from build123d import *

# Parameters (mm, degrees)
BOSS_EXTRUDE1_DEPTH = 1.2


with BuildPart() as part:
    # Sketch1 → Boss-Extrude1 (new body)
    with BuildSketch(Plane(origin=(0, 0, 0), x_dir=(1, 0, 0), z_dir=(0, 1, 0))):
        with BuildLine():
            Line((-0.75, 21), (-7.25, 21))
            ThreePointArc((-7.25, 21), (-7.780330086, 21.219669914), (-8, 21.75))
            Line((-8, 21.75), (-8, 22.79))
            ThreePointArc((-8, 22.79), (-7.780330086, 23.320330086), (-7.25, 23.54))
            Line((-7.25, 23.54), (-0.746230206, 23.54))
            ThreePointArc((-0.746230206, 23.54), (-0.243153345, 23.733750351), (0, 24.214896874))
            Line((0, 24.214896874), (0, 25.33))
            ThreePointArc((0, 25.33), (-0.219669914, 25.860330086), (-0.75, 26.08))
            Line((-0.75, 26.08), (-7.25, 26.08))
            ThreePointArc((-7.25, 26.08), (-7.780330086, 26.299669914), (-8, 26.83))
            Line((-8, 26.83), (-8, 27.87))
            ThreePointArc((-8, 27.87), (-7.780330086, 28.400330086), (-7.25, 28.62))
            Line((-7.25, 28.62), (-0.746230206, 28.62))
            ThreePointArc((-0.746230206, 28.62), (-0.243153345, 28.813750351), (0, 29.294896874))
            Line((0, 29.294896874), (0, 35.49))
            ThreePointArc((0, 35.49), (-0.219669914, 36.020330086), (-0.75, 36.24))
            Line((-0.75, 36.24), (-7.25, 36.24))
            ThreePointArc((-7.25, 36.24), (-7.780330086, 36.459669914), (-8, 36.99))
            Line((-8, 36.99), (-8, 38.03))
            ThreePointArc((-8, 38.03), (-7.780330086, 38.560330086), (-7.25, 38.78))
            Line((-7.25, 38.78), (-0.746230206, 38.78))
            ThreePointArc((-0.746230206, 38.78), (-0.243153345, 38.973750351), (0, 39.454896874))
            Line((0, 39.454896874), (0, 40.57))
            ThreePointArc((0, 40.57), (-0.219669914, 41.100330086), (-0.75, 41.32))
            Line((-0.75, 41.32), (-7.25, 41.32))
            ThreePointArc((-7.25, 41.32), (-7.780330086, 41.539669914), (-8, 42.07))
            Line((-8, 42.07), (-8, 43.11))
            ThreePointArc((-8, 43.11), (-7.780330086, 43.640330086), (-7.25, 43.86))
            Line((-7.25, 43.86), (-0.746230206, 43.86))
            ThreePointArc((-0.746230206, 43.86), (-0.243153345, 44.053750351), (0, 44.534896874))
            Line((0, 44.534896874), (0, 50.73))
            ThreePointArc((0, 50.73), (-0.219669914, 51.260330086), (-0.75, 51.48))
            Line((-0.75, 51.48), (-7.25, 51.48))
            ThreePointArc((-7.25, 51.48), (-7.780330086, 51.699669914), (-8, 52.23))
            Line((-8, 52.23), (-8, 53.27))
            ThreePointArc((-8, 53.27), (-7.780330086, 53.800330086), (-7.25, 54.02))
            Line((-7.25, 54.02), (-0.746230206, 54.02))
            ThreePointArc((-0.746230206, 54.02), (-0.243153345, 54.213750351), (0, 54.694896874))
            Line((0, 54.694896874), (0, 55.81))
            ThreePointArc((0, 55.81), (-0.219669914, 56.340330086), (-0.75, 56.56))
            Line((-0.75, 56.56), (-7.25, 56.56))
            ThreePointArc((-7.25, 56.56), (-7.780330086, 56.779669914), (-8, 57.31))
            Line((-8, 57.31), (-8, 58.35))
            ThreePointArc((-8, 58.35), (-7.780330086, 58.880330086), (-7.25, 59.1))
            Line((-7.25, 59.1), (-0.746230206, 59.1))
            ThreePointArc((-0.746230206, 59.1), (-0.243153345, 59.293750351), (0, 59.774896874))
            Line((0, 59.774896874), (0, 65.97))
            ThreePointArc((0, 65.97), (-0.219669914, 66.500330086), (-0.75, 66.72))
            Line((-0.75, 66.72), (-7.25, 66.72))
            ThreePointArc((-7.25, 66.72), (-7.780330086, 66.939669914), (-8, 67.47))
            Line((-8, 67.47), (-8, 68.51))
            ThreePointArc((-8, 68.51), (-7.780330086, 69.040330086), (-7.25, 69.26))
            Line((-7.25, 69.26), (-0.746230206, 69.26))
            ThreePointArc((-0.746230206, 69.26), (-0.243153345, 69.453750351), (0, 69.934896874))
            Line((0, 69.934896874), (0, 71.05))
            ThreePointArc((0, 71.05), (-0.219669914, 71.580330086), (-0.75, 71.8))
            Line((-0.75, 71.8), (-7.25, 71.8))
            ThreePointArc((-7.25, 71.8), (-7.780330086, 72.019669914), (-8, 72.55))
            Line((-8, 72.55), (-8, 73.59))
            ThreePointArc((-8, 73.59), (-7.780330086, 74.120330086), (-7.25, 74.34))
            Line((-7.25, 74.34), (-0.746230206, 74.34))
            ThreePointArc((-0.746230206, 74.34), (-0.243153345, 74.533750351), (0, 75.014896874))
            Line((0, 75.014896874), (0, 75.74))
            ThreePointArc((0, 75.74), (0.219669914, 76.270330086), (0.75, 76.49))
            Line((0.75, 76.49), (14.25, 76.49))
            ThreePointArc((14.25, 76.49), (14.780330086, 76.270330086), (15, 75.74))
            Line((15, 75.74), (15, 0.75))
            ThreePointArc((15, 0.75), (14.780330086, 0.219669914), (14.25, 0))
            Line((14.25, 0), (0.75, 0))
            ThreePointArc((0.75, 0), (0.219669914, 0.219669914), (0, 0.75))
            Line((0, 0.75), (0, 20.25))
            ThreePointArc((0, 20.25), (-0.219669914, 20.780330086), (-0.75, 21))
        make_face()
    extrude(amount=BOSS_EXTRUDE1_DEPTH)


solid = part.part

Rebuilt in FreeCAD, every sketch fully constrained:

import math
import FreeCAD as App
import Part
import Sketcher

V = App.Vector
Q = App.Units.Quantity

doc = App.newDocument("Part")
body = doc.addObject("PartDesign::Body", "Body")

# Sketch on XZ plane
sketch1 = body.newObject("Sketcher::SketchObject", "Sketch")
sketch1.AttachmentSupport = (doc.getObject("XZ_Plane"), [""])
sketch1.MapMode = "FlatFace"
sketch1.addGeometry([
    Part.LineSegment(V(-7.25, -21, 0), V(-0.75, -21, 0)),  # 0
    Part.ArcOfCircle(Part.Circle(V(-0.75, -20.25, 0), V(0, 0, 1), 0.75), math.radians(-90), math.radians(0)),  # 1
    Part.LineSegment(V(0, -20.25, 0), V(0, -0.75, 0)),  # 2
    Part.ArcOfCircle(Part.Circle(V(0.75, -0.75, 0), V(0, 0, 1), 0.75), math.radians(90), math.radians(180)),  # 3
    Part.LineSegment(V(0.75, 0, 0), V(14.25, 0, 0)),  # 4
    Part.ArcOfCircle(Part.Circle(V(14.25, -0.75, 0), V(0, 0, 1), 0.75), math.radians(0), math.radians(90)),  # 5
    Part.LineSegment(V(15, -0.75, 0), V(15, -75.74, 0)),  # 6
    Part.ArcOfCircle(Part.Circle(V(14.25, -75.74, 0), V(0, 0, 1), 0.75), math.radians(-90), math.radians(0)),  # 7
    Part.LineSegment(V(14.25, -76.49, 0), V(0.75, -76.49, 0)),  # 8
    Part.ArcOfCircle(Part.Circle(V(0.75, -75.74, 0), V(0, 0, 1), 0.75), math.radians(180), math.radians(270)),  # 9
    Part.LineSegment(V(0, -75.74, 0), V(0, -75.014897, 0)),  # 10
    Part.ArcOfCircle(Part.Circle(V(-0.74623, -75.09, 0), V(0, 0, 1), 0.75), math.radians(5.747088), math.radians(90)),  # 11
    Part.LineSegment(V(-0.74623, -74.34, 0), V(-7.25, -74.34, 0)),  # 12
    Part.ArcOfCircle(Part.Circle(V(-7.25, -73.59, 0), V(0, 0, 1), 0.75), math.radians(180), math.radians(270)),  # 13
    Part.LineSegment(V(-8, -73.59, 0), V(-8, -72.55, 0)),  # 14
    Part.ArcOfCircle(Part.Circle(V(-7.25, -72.55, 0), V(0, 0, 1), 0.75), math.radians(90), math.radians(180)),  # 15
    Part.LineSegment(V(-7.25, -71.8, 0), V(-0.75, -71.8, 0)),  # 16
    Part.ArcOfCircle(Part.Circle(V(-0.75, -71.05, 0), V(0, 0, 1), 0.75), math.radians(-90), math.radians(0)),  # 17
    Part.LineSegment(V(0, -71.05, 0), V(0, -69.934897, 0)),  # 18
    Part.ArcOfCircle(Part.Circle(V(-0.74623, -70.01, 0), V(0, 0, 1), 0.75), math.radians(5.747088), math.radians(90)),  # 19
    Part.LineSegment(V(-0.74623, -69.26, 0), V(-7.25, -69.26, 0)),  # 20
    Part.ArcOfCircle(Part.Circle(V(-7.25, -68.51, 0), V(0, 0, 1), 0.75), math.radians(180), math.radians(270)),  # 21
    Part.LineSegment(V(-8, -68.51, 0), V(-8, -67.47, 0)),  # 22
    Part.ArcOfCircle(Part.Circle(V(-7.25, -67.47, 0), V(0, 0, 1), 0.75), math.radians(90), math.radians(180)),  # 23
    Part.LineSegment(V(-7.25, -66.72, 0), V(-0.75, -66.72, 0)),  # 24
    Part.ArcOfCircle(Part.Circle(V(-0.75, -65.97, 0), V(0, 0, 1), 0.75), math.radians(-90), math.radians(0)),  # 25
    Part.LineSegment(V(0, -65.97, 0), V(0, -59.774897, 0)),  # 26
    Part.ArcOfCircle(Part.Circle(V(-0.74623, -59.85, 0), V(0, 0, 1), 0.75), math.radians(5.747088), math.radians(90)),  # 27
    Part.LineSegment(V(-0.74623, -59.1, 0), V(-7.25, -59.1, 0)),  # 28
    Part.ArcOfCircle(Part.Circle(V(-7.25, -58.35, 0), V(0, 0, 1), 0.75), math.radians(180), math.radians(270)),  # 29
    Part.LineSegment(V(-8, -58.35, 0), V(-8, -57.31, 0)),  # 30
    Part.ArcOfCircle(Part.Circle(V(-7.25, -57.31, 0), V(0, 0, 1), 0.75), math.radians(90), math.radians(180)),  # 31
    Part.LineSegment(V(-7.25, -56.56, 0), V(-0.75, -56.56, 0)),  # 32
    Part.ArcOfCircle(Part.Circle(V(-0.75, -55.81, 0), V(0, 0, 1), 0.75), math.radians(-90), math.radians(0)),  # 33
    Part.LineSegment(V(0, -55.81, 0), V(0, -54.694897, 0)),  # 34
    Part.ArcOfCircle(Part.Circle(V(-0.74623, -54.77, 0), V(0, 0, 1), 0.75), math.radians(5.747088), math.radians(90)),  # 35
    Part.LineSegment(V(-0.74623, -54.02, 0), V(-7.25, -54.02, 0)),  # 36
    Part.ArcOfCircle(Part.Circle(V(-7.25, -53.27, 0), V(0, 0, 1), 0.75), math.radians(180), math.radians(270)),  # 37
    Part.LineSegment(V(-8, -53.27, 0), V(-8, -52.23, 0)),  # 38
    Part.ArcOfCircle(Part.Circle(V(-7.25, -52.23, 0), V(0, 0, 1), 0.75), math.radians(90), math.radians(180)),  # 39
    Part.LineSegment(V(-7.25, -51.48, 0), V(-0.75, -51.48, 0)),  # 40
    Part.ArcOfCircle(Part.Circle(V(-0.75, -50.73, 0), V(0, 0, 1), 0.75), math.radians(-90), math.radians(0)),  # 41
    Part.LineSegment(V(0, -50.73, 0), V(0, -44.534897, 0)),  # 42
    Part.ArcOfCircle(Part.Circle(V(-0.74623, -44.61, 0), V(0, 0, 1), 0.75), math.radians(5.747088), math.radians(90)),  # 43
    Part.LineSegment(V(-0.74623, -43.86, 0), V(-7.25, -43.86, 0)),  # 44
    Part.ArcOfCircle(Part.Circle(V(-7.25, -43.11, 0), V(0, 0, 1), 0.75), math.radians(180), math.radians(270)),  # 45
    Part.LineSegment(V(-8, -43.11, 0), V(-8, -42.07, 0)),  # 46
    Part.ArcOfCircle(Part.Circle(V(-7.25, -42.07, 0), V(0, 0, 1), 0.75), math.radians(90), math.radians(180)),  # 47
    Part.LineSegment(V(-7.25, -41.32, 0), V(-0.75, -41.32, 0)),  # 48
    Part.ArcOfCircle(Part.Circle(V(-0.75, -40.57, 0), V(0, 0, 1), 0.75), math.radians(-90), math.radians(0)),  # 49
    Part.LineSegment(V(0, -40.57, 0), V(0, -39.454897, 0)),  # 50
    Part.ArcOfCircle(Part.Circle(V(-0.74623, -39.53, 0), V(0, 0, 1), 0.75), math.radians(5.747088), math.radians(90)),  # 51
    Part.LineSegment(V(-0.74623, -38.78, 0), V(-7.25, -38.78, 0)),  # 52
    Part.ArcOfCircle(Part.Circle(V(-7.25, -38.03, 0), V(0, 0, 1), 0.75), math.radians(180), math.radians(270)),  # 53
    Part.LineSegment(V(-8, -38.03, 0), V(-8, -36.99, 0)),  # 54
    Part.ArcOfCircle(Part.Circle(V(-7.25, -36.99, 0), V(0, 0, 1), 0.75), math.radians(90), math.radians(180)),  # 55
    Part.LineSegment(V(-7.25, -36.24, 0), V(-0.75, -36.24, 0)),  # 56
    Part.ArcOfCircle(Part.Circle(V(-0.75, -35.49, 0), V(0, 0, 1), 0.75), math.radians(-90), math.radians(0)),  # 57
    Part.LineSegment(V(0, -35.49, 0), V(0, -29.294897, 0)),  # 58
    Part.ArcOfCircle(Part.Circle(V(-0.74623, -29.37, 0), V(0, 0, 1), 0.75), math.radians(5.747088), math.radians(90)),  # 59
    Part.LineSegment(V(-0.74623, -28.62, 0), V(-7.25, -28.62, 0)),  # 60
    Part.ArcOfCircle(Part.Circle(V(-7.25, -27.87, 0), V(0, 0, 1), 0.75), math.radians(180), math.radians(270)),  # 61
    Part.LineSegment(V(-8, -27.87, 0), V(-8, -26.83, 0)),  # 62
    Part.ArcOfCircle(Part.Circle(V(-7.25, -26.83, 0), V(0, 0, 1), 0.75), math.radians(90), math.radians(180)),  # 63
    Part.LineSegment(V(-7.25, -26.08, 0), V(-0.75, -26.08, 0)),  # 64
    Part.ArcOfCircle(Part.Circle(V(-0.75, -25.33, 0), V(0, 0, 1), 0.75), math.radians(-90), math.radians(0)),  # 65
    Part.LineSegment(V(0, -25.33, 0), V(0, -24.214897, 0)),  # 66
    Part.ArcOfCircle(Part.Circle(V(-0.74623, -24.29, 0), V(0, 0, 1), 0.75), math.radians(5.747088), math.radians(90)),  # 67
    Part.LineSegment(V(-0.74623, -23.54, 0), V(-7.25, -23.54, 0)),  # 68
    Part.ArcOfCircle(Part.Circle(V(-7.25, -22.79, 0), V(0, 0, 1), 0.75), math.radians(180), math.radians(270)),  # 69
    Part.LineSegment(V(-8, -22.79, 0), V(-8, -21.75, 0)),  # 70
    Part.ArcOfCircle(Part.Circle(V(-7.25, -21.75, 0), V(0, 0, 1), 0.75), math.radians(90), math.radians(180)),  # 71
], False)
sketch1.addConstraint([
    Sketcher.Constraint("Tangent", 0, 2, 1, 1),
    Sketcher.Constraint("Tangent", 1, 2, 2, 1),
    Sketcher.Constraint("Tangent", 2, 2, 3, 2),
    Sketcher.Constraint("Tangent", 3, 1, 4, 1),
    Sketcher.Constraint("Tangent", 4, 2, 5, 2),
    Sketcher.Constraint("Tangent", 5, 1, 6, 1),
    Sketcher.Constraint("Tangent", 6, 2, 7, 2),
    Sketcher.Constraint("Tangent", 7, 1, 8, 1),
    Sketcher.Constraint("Tangent", 8, 2, 9, 2),
    Sketcher.Constraint("Tangent", 9, 1, 10, 1),
    Sketcher.Constraint("Coincident", 10, 2, 11, 1),
    Sketcher.Constraint("Tangent", 11, 2, 12, 1),
    Sketcher.Constraint("Tangent", 12, 2, 13, 2),
    Sketcher.Constraint("Tangent", 13, 1, 14, 1),
    Sketcher.Constraint("Tangent", 14, 2, 15, 2),
    Sketcher.Constraint("Tangent", 15, 1, 16, 1),
    Sketcher.Constraint("Tangent", 16, 2, 17, 1),
    Sketcher.Constraint("Tangent", 17, 2, 18, 1),
    Sketcher.Constraint("Coincident", 18, 2, 19, 1),
    Sketcher.Constraint("Tangent", 19, 2, 20, 1),
    Sketcher.Constraint("Tangent", 20, 2, 21, 2),
    Sketcher.Constraint("Tangent", 21, 1, 22, 1),
    Sketcher.Constraint("Tangent", 22, 2, 23, 2),
    Sketcher.Constraint("Tangent", 23, 1, 24, 1),
    Sketcher.Constraint("Tangent", 24, 2, 25, 1),
    Sketcher.Constraint("Tangent", 25, 2, 26, 1),
    Sketcher.Constraint("Coincident", 26, 2, 27, 1),
    Sketcher.Constraint("Tangent", 27, 2, 28, 1),
    Sketcher.Constraint("Tangent", 28, 2, 29, 2),
    Sketcher.Constraint("Tangent", 29, 1, 30, 1),
    Sketcher.Constraint("Tangent", 30, 2, 31, 2),
    Sketcher.Constraint("Tangent", 31, 1, 32, 1),
    Sketcher.Constraint("Tangent", 32, 2, 33, 1),
    Sketcher.Constraint("Tangent", 33, 2, 34, 1),
    Sketcher.Constraint("Coincident", 34, 2, 35, 1),
    Sketcher.Constraint("Tangent", 35, 2, 36, 1),
    Sketcher.Constraint("Tangent", 36, 2, 37, 2),
    Sketcher.Constraint("Tangent", 37, 1, 38, 1),
    Sketcher.Constraint("Tangent", 38, 2, 39, 2),
    Sketcher.Constraint("Tangent", 39, 1, 40, 1),
    Sketcher.Constraint("Tangent", 40, 2, 41, 1),
    Sketcher.Constraint("Tangent", 41, 2, 42, 1),
    Sketcher.Constraint("Coincident", 42, 2, 43, 1),
    Sketcher.Constraint("Tangent", 43, 2, 44, 1),
    Sketcher.Constraint("Tangent", 44, 2, 45, 2),
    Sketcher.Constraint("Tangent", 45, 1, 46, 1),
    Sketcher.Constraint("Tangent", 46, 2, 47, 2),
    Sketcher.Constraint("Tangent", 47, 1, 48, 1),
    Sketcher.Constraint("Tangent", 48, 2, 49, 1),
    Sketcher.Constraint("Tangent", 49, 2, 50, 1),
    Sketcher.Constraint("Coincident", 50, 2, 51, 1),
    Sketcher.Constraint("Tangent", 51, 2, 52, 1),
    Sketcher.Constraint("Tangent", 52, 2, 53, 2),
    Sketcher.Constraint("Tangent", 53, 1, 54, 1),
    Sketcher.Constraint("Tangent", 54, 2, 55, 2),
    Sketcher.Constraint("Tangent", 55, 1, 56, 1),
    Sketcher.Constraint("Tangent", 56, 2, 57, 1),
    Sketcher.Constraint("Tangent", 57, 2, 58, 1),
    Sketcher.Constraint("Coincident", 58, 2, 59, 1),
    Sketcher.Constraint("Tangent", 59, 2, 60, 1),
    Sketcher.Constraint("Tangent", 60, 2, 61, 2),
    Sketcher.Constraint("Tangent", 61, 1, 62, 1),
    Sketcher.Constraint("Tangent", 62, 2, 63, 2),
    Sketcher.Constraint("Tangent", 63, 1, 64, 1),
    Sketcher.Constraint("Tangent", 64, 2, 65, 1),
    Sketcher.Constraint("Tangent", 65, 2, 66, 1),
    Sketcher.Constraint("Coincident", 66, 2, 67, 1),
    Sketcher.Constraint("Tangent", 67, 2, 68, 1),
    Sketcher.Constraint("Tangent", 68, 2, 69, 2),
    Sketcher.Constraint("Tangent", 69, 1, 70, 1),
    Sketcher.Constraint("Tangent", 70, 2, 71, 2),
    Sketcher.Constraint("Tangent", 71, 1, 0, 1),
    Sketcher.Constraint("Horizontal", 0),
    Sketcher.Constraint("Vertical", 2),
    Sketcher.Constraint("Horizontal", 4),
    Sketcher.Constraint("Vertical", 6),
    Sketcher.Constraint("Horizontal", 8),
    Sketcher.Constraint("Vertical", 10),
    Sketcher.Constraint("Horizontal", 12),
    Sketcher.Constraint("Vertical", 14),
    Sketcher.Constraint("Horizontal", 16),
    Sketcher.Constraint("Vertical", 18),
    Sketcher.Constraint("Horizontal", 20),
    Sketcher.Constraint("Vertical", 22),
    Sketcher.Constraint("Horizontal", 24),
    Sketcher.Constraint("Vertical", 26),
    Sketcher.Constraint("Horizontal", 28),
    Sketcher.Constraint("Vertical", 30),
    Sketcher.Constraint("Horizontal", 32),
    Sketcher.Constraint("Vertical", 34),
    Sketcher.Constraint("Horizontal", 36),
    Sketcher.Constraint("Vertical", 38),
    Sketcher.Constraint("Horizontal", 40),
    Sketcher.Constraint("Vertical", 42),
    Sketcher.Constraint("Horizontal", 44),
    Sketcher.Constraint("Vertical", 46),
    Sketcher.Constraint("Horizontal", 48),
    Sketcher.Constraint("Vertical", 50),
    Sketcher.Constraint("Horizontal", 52),
    Sketcher.Constraint("Vertical", 54),
    Sketcher.Constraint("Horizontal", 56),
    Sketcher.Constraint("Vertical", 58),
    Sketcher.Constraint("Horizontal", 60),
    Sketcher.Constraint("Vertical", 62),
    Sketcher.Constraint("Horizontal", 64),
    Sketcher.Constraint("Vertical", 66),
    Sketcher.Constraint("Horizontal", 68),
    Sketcher.Constraint("Vertical", 70),
    Sketcher.Constraint("Equal", 1, 3),
    Sketcher.Constraint("Equal", 3, 5),
    Sketcher.Constraint("Equal", 5, 7),
    Sketcher.Constraint("Equal", 7, 9),
    Sketcher.Constraint("Equal", 9, 11),
    Sketcher.Constraint("Equal", 11, 13),
    Sketcher.Constraint("Equal", 13, 15),
    Sketcher.Constraint("Equal", 15, 17),
    Sketcher.Constraint("Equal", 17, 19),
    Sketcher.Constraint("Equal", 19, 21),
    Sketcher.Constraint("Equal", 21, 23),
    Sketcher.Constraint("Equal", 23, 25),
    Sketcher.Constraint("Equal", 25, 27),
    Sketcher.Constraint("Equal", 27, 29),
    Sketcher.Constraint("Equal", 29, 31),
    Sketcher.Constraint("Equal", 31, 33),
    Sketcher.Constraint("Equal", 33, 35),
    Sketcher.Constraint("Equal", 35, 37),
    Sketcher.Constraint("Equal", 37, 39),
    Sketcher.Constraint("Equal", 39, 41),
    Sketcher.Constraint("Equal", 41, 43),
    Sketcher.Constraint("Equal", 43, 45),
    Sketcher.Constraint("Equal", 45, 47),
    Sketcher.Constraint("Equal", 47, 49),
    Sketcher.Constraint("Equal", 49, 51),
    Sketcher.Constraint("Equal", 51, 53),
    Sketcher.Constraint("Equal", 53, 55),
    Sketcher.Constraint("Equal", 55, 57),
    Sketcher.Constraint("Equal", 57, 59),
    Sketcher.Constraint("Equal", 59, 61),
    Sketcher.Constraint("Equal", 61, 63),
    Sketcher.Constraint("Equal", 63, 65),
    Sketcher.Constraint("Equal", 65, 67),
    Sketcher.Constraint("Equal", 67, 69),
    Sketcher.Constraint("Equal", 69, 71),
    Sketcher.Constraint("PointOnObject", 1, 2, -2),
    Sketcher.Constraint("PointOnObject", 3, 1, -1),
    Sketcher.Constraint("PointOnObject", 9, 1, -2),
    Sketcher.Constraint("PointOnObject", 17, 2, -2),
    Sketcher.Constraint("PointOnObject", 25, 2, -2),
    Sketcher.Constraint("PointOnObject", 33, 2, -2),
    Sketcher.Constraint("PointOnObject", 41, 2, -2),
    Sketcher.Constraint("PointOnObject", 49, 2, -2),
    Sketcher.Constraint("PointOnObject", 57, 2, -2),
    Sketcher.Constraint("PointOnObject", 65, 2, -2),
    Sketcher.Constraint("Vertical", 11, 3, 19, 3),
    Sketcher.Constraint("Vertical", 15, 3, 21, 3),
    Sketcher.Constraint("Vertical", 19, 3, 27, 3),
    Sketcher.Constraint("Vertical", 23, 3, 29, 3),
    Sketcher.Constraint("Vertical", 27, 3, 35, 3),
    Sketcher.Constraint("Vertical", 31, 3, 37, 3),
    Sketcher.Constraint("Vertical", 35, 3, 43, 3),
    Sketcher.Constraint("Vertical", 39, 3, 45, 3),
    Sketcher.Constraint("Vertical", 43, 3, 51, 3),
    Sketcher.Constraint("Vertical", 47, 3, 53, 3),
    Sketcher.Constraint("Vertical", 51, 3, 59, 3),
    Sketcher.Constraint("Vertical", 55, 3, 61, 3),
    Sketcher.Constraint("Vertical", 59, 3, 67, 3),
    Sketcher.Constraint("Vertical", 63, 3, 69, 3),
    Sketcher.Constraint("Equal", 14, 22),
    Sketcher.Constraint("Equal", 22, 30),
    Sketcher.Constraint("Equal", 18, 34),
    Sketcher.Constraint("Equal", 30, 38),
    Sketcher.Constraint("Equal", 26, 42),
    Sketcher.Constraint("Equal", 38, 46),
    Sketcher.Constraint("Equal", 34, 50),
    Sketcher.Constraint("Equal", 46, 54),
    Sketcher.Constraint("Equal", 42, 58),
    Sketcher.Constraint("Equal", 54, 62),
    Sketcher.Constraint("Equal", 50, 66),
    Sketcher.Constraint("Equal", 62, 70),
    Sketcher.Constraint("Radius", 1, Q("0.75 mm")),
    Sketcher.Constraint("DistanceX", 0, 1, 0, 2, Q("6.5 mm")),
    Sketcher.Constraint("DistanceX", 4, 1, 4, 2, Q("13.5 mm")),
    Sketcher.Constraint("DistanceY", 2, 1, 2, 2, Q("19.5 mm")),
    Sketcher.Constraint("DistanceY", 6, 2, 6, 1, Q("74.99 mm")),
    Sketcher.Constraint("DistanceY", 14, 1, 14, 2, Q("1.04 mm")),
    Sketcher.Constraint("DistanceY", 15, 1, -1, 1, Q("71.8 mm")),
    Sketcher.Constraint("DistanceY", 27, 2, -1, 1, Q("59.1 mm")),
    Sketcher.Constraint("DistanceX", 12, 2, 12, 1, Q("6.50377 mm")),
])
pad1 = body.newObject("PartDesign::Pad", "Pad")
pad1.Profile = sketch1
pad1.Length = 1.2
pad1.Reversed = True

doc.recompute()
